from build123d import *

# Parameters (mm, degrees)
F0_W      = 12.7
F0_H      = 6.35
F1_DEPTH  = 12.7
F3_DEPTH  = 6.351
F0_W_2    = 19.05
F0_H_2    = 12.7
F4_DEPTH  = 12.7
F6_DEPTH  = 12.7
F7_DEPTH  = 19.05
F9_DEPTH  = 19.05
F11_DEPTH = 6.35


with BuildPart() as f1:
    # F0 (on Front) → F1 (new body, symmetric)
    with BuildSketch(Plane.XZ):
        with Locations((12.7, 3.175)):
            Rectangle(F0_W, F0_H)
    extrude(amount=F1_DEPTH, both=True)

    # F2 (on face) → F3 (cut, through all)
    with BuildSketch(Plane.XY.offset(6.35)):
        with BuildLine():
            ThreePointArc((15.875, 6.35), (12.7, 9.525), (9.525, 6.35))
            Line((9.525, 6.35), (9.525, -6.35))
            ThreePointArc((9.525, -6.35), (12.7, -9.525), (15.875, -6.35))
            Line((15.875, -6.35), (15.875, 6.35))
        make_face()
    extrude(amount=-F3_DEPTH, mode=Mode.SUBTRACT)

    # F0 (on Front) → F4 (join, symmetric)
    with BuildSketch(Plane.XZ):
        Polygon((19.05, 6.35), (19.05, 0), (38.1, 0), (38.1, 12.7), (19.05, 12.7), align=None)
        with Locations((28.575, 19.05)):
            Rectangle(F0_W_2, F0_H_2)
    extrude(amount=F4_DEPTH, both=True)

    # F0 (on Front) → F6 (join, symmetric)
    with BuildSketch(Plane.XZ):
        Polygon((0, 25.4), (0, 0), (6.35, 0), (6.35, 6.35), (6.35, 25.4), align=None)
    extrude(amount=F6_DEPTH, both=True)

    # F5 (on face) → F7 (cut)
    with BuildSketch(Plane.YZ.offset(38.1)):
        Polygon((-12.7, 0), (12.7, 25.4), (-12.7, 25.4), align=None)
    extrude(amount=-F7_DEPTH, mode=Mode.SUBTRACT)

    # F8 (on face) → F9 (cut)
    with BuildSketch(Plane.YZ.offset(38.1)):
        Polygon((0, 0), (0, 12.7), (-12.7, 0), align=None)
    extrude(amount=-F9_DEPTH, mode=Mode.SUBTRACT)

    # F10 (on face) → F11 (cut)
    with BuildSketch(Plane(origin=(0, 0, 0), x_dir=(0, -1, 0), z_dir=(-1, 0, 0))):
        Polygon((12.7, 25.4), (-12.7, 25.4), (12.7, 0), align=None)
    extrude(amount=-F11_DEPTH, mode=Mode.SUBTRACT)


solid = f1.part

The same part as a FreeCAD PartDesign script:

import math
import FreeCAD as App
import Part
import Sketcher
Q = App.Units.Quantity

doc = App.newDocument("Part")
body = doc.addObject("PartDesign::Body", "Body")

sketch1 = doc.addObject("Sketcher::SketchObject", "Sketch")
body.addObject(sketch1)
sketch1.AttachmentSupport = (doc.XZ_Plane, [""])
sketch1.MapMode = "FlatFace"
sketch1.addGeometry(Part.LineSegment(App.Vector(6, 6, 0), App.Vector(6, 0, 0)), False)
sketch1.addGeometry(Part.LineSegment(App.Vector(6, 0, 0), App.Vector(19, 0, 0)), False)
sketch1.addGeometry(Part.LineSegment(App.Vector(19, 0, 0), App.Vector(19, 6, 0)), False)
sketch1.addGeometry(Part.LineSegment(App.Vector(19, 6, 0), App.Vector(6, 6, 0)), False)
sketch1.addConstraint(Sketcher.Constraint("Coincident", 0, 2, 1, 1))
sketch1.addConstraint(Sketcher.Constraint("Coincident", 1, 2, 2, 1))
sketch1.addConstraint(Sketcher.Constraint("Coincident", 2, 2, 3, 1))
sketch1.addConstraint(Sketcher.Constraint("Coincident", 3, 2, 0, 1))
sketch1.addConstraint(Sketcher.Constraint("Vertical", 0))
sketch1.addConstraint(Sketcher.Constraint("Horizontal", 1))
sketch1.addConstraint(Sketcher.Constraint("Vertical", 2))
sketch1.addConstraint(Sketcher.Constraint("Horizontal", 3))
sketch1.addConstraint(Sketcher.Constraint("PointOnObject", 0, 2, -1))
sketch1.addConstraint(Sketcher.Constraint("DistanceX", 1, 1, 1, 2, Q("0.5 in")))
sketch1.addConstraint(Sketcher.Constraint("DistanceY", 0, 2, 0, 1, Q("0.25 in")))
sketch1.addConstraint(Sketcher.Constraint("DistanceX", -1, 1, 0, 2, Q("0.25 in")))
pad1 = doc.addObject("PartDesign::Pad", "Pad")
body.addObject(pad1)
pad1.Profile = sketch1
pad1.Length = Q("1 in")
pad1.Midplane = True

sketch2 = doc.addObject("Sketcher::SketchObject", "Sketch001")
body.addObject(sketch2)
sketch2.AttachmentSupport = (doc.XY_Plane, [""])
sketch2.MapMode = "FlatFace"
sketch2.AttachmentOffset = App.Placement(App.Vector(0, 0, 0.25 * 25.4), App.Rotation())
sketch2.addGeometry(Part.ArcOfCircle(Part.Circle(App.Vector(12.7, 6.3, 0), App.Vector(0, 0, 1), 3.2), math.radians(0), math.radians(180)), False)
sketch2.addGeometry(Part.LineSegment(App.Vector(9.5, 6.3, 0), App.Vector(9.5, -6.3, 0)), False)
sketch2.addGeometry(Part.ArcOfCircle(Part.Circle(App.Vector(12.7, -6.3, 0), App.Vector(0, 0, 1), 3.2), math.radians(180), math.radians(360)), False)
sketch2.addGeometry(Part.LineSegment(App.Vector(15.9, -6.3, 0), App.Vector(15.9, 6.3, 0)), False)
sketch2.addConstraint(Sketcher.Constraint("Tangent", 0, 2, 1, 1))
sketch2.addConstraint(Sketcher.Constraint("Tangent", 1, 2, 2, 1))
sketch2.addConstraint(Sketcher.Constraint("Tangent", 2, 2, 3, 1))
sketch2.addConstraint(Sketcher.Constraint("Tangent", 3, 2, 0, 1))
sketch2.addConstraint(Sketcher.Constraint("Vertical", 1))
sketch2.addConstraint(Sketcher.Constraint("Vertical", 3))
sketch2.addConstraint(Sketcher.Constraint("DistanceY", 1, 2, 1, 1, Q("0.5 in")))
sketch2.addConstraint(Sketcher.Constraint("Radius", 0, Q("0.125 in")))
sketch2.addConstraint(Sketcher.Constraint("DistanceX", -1, 1, 0, 3, Q("0.5 in")))
sketch2.addConstraint(Sketcher.Constraint("DistanceY", -1, 1, 0, 3, Q("0.25 in")))
pocket1 = doc.addObject("PartDesign::Pocket", "Pocket")
body.addObject(pocket1)
pocket1.Profile = sketch2
pocket1.Type = "ThroughAll"

sketch3 = doc.addObject("Sketcher::SketchObject", "Sketch002")
body.addObject(sketch3)
sketch3.AttachmentSupport = (doc.XZ_Plane, [""])
sketch3.MapMode = "FlatFace"
sketch3.addGeometry(Part.LineSegment(App.Vector(19, 0, 0), App.Vector(38, 0, 0)), False)
sketch3.addGeometry(Part.LineSegment(App.Vector(38, 0, 0), App.Vector(38, 25, 0)), False)
sketch3.addGeometry(Part.LineSegment(App.Vector(38, 25, 0), App.Vector(19, 25, 0)), False)
sketch3.addGeometry(Part.LineSegment(App.Vector(19, 25, 0), App.Vector(19, 0, 0)), False)
sketch3.addConstraint(Sketcher.Constraint("Coincident", 0, 2, 1, 1))
sketch3.addConstraint(Sketcher.Constraint("Coincident", 1, 2, 2, 1))
sketch3.addConstraint(Sketcher.Constraint("Coincident", 2, 2, 3, 1))
sketch3.addConstraint(Sketcher.Constraint("Coincident", 3, 2, 0, 1))
sketch3.addConstraint(Sketcher.Constraint("Horizontal", 0))
sketch3.addConstraint(Sketcher.Constraint("Vertical", 1))
sketch3.addConstraint(Sketcher.Constraint("Horizontal", 2))
sketch3.addConstraint(Sketcher.Constraint("Vertical", 3))
sketch3.addConstraint(Sketcher.Constraint("PointOnObject", 0, 2, -1))
sketch3.addConstraint(Sketcher.Constraint("DistanceY", 1, 1, 1, 2, Q("1 in")))
sketch3.addConstraint(Sketcher.Constraint("DistanceX", 0, 1, 0, 2, Q("0.75 in")))
sketch3.addConstraint(Sketcher.Constraint("DistanceX", -1, 1, 0, 2, Q("1.5 in")))
pad2 = doc.addObject("PartDesign::Pad", "Pad001")
body.addObject(pad2)
pad2.Profile = sketch3
pad2.Length = Q("1 in")
pad2.Midplane = True

sketch4 = doc.addObject("Sketcher::SketchObject", "Sketch003")
body.addObject(sketch4)
sketch4.AttachmentSupport = (doc.XZ_Plane, [""])
sketch4.MapMode = "FlatFace"
sketch4.addGeometry(Part.LineSegment(App.Vector(0, 25, 0), App.Vector(0, 0, 0)), False)
sketch4.addGeometry(Part.LineSegment(App.Vector(0, 0, 0), App.Vector(6, 0, 0)), False)
sketch4.addGeometry(Part.LineSegment(App.Vector(6, 0, 0), App.Vector(6, 25, 0)), False)
sketch4.addGeometry(Part.LineSegment(App.Vector(6, 25, 0), App.Vector(0, 25, 0)), False)
sketch4.addConstraint(Sketcher.Constraint("Coincident", 0, 2, 1, 1))
sketch4.addConstraint(Sketcher.Constraint("Coincident", 1, 2, 2, 1))
sketch4.addConstraint(Sketcher.Constraint("Coincident", 2, 2, 3, 1))
sketch4.addConstraint(Sketcher.Constraint("Coincident", 3, 2, 0, 1))
sketch4.addConstraint(Sketcher.Constraint("Vertical", 0))
sketch4.addConstraint(Sketcher.Constraint("Horizontal", 1))
sketch4.addConstraint(Sketcher.Constraint("Vertical", 2))
sketch4.addConstraint(Sketcher.Constraint("Horizontal", 3))
sketch4.addConstraint(Sketcher.Constraint("Coincident", 0, 2, -1, 1))
sketch4.addConstraint(Sketcher.Constraint("DistanceY", 0, 2, 0, 1, Q("1 in")))
sketch4.addConstraint(Sketcher.Constraint("DistanceX", 1, 1, 1, 2, Q("0.25 in")))
pad3 = doc.addObject("PartDesign::Pad", "Pad002")
body.addObject(pad3)
pad3.Profile = sketch4
pad3.Length = Q("1 in")
pad3.Midplane = True

sketch5 = doc.addObject("Sketcher::SketchObject", "Sketch004")
body.addObject(sketch5)
sketch5.AttachmentSupport = (doc.YZ_Plane, [""])
sketch5.MapMode = "FlatFace"
sketch5.AttachmentOffset = App.Placement(App.Vector(0, 0, 1.5 * 25.4), App.Rotation())
sketch5.addGeometry(Part.LineSegment(App.Vector(-13, 0, 0), App.Vector(13, 25, 0)), False)
sketch5.addGeometry(Part.LineSegment(App.Vector(13, 25, 0), App.Vector(-13, 25, 0)), False)
sketch5.addGeometry(Part.LineSegment(App.Vector(-13, 25, 0), App.Vector(-13, 0, 0)), False)
sketch5.addConstraint(Sketcher.Constraint("Coincident", 0, 2, 1, 1))
sketch5.addConstraint(Sketcher.Constraint("Coincident", 1, 2, 2, 1))
sketch5.addConstraint(Sketcher.Constraint("Coincident", 2, 2, 0, 1))
sketch5.addConstraint(Sketcher.Constraint("Horizontal", 1))
sketch5.addConstraint(Sketcher.Constraint("Vertical", 2))
sketch5.addConstraint(Sketcher.Constraint("PointOnObject", 2, 2, -1))
sketch5.addConstraint(Sketcher.Constraint("Equal", 1, 2))
sketch5.addConstraint(Sketcher.Constraint("DistanceX", 1, 2, 1, 1, Q("1 in")))
sketch5.addConstraint(Sketcher.Constraint("DistanceX", -1, 1, 0, 2, Q("0.5 in")))
pocket2 = doc.addObject("PartDesign::Pocket", "Pocket001")
body.addObject(pocket2)
pocket2.Profile = sketch5
pocket2.Length = Q("0.75 in")

sketch6 = doc.addObject("Sketcher::SketchObject", "Sketch005")
body.addObject(sketch6)
sketch6.AttachmentSupport = (doc.YZ_Plane, [""])
sketch6.MapMode = "FlatFace"
sketch6.AttachmentOffset = App.Placement(App.Vector(0, 0, 1.5 * 25.4), App.Rotation())
sketch6.addGeometry(Part.LineSegment(App.Vector(0, 0, 0), App.Vector(0, 13, 0)), False)
sketch6.addGeometry(Part.LineSegment(App.Vector(0, 13, 0), App.Vector(-13, 0, 0)), False)
sketch6.addGeometry(Part.LineSegment(App.Vector(-13, 0, 0), App.Vector(0, 0, 0)), False)
sketch6.addConstraint(Sketcher.Constraint("Coincident", 0, 2, 1, 1))
sketch6.addConstraint(Sketcher.Constraint("Coincident", 1, 2, 2, 1))
sketch6.addConstraint(Sketcher.Constraint("Coincident", 2, 2, 0, 1))
sketch6.addConstraint(Sketcher.Constraint("Vertical", 0))
sketch6.addConstraint(Sketcher.Constraint("Horizontal", 2))
sketch6.addConstraint(Sketcher.Constraint("Coincident", 2, 2, -1, 1))
sketch6.addConstraint(Sketcher.Constraint("Equal", 2, 0))
sketch6.addConstraint(Sketcher.Constraint("DistanceX", 2, 1, 2, 2, Q("0.5 in")))
pocket3 = doc.addObject("PartDesign::Pocket", "Pocket002")
body.addObject(pocket3)
pocket3.Profile = sketch6
pocket3.Length = Q("0.75 in")

sketch7 = doc.addObject("Sketcher::SketchObject", "Sketch006")
body.addObject(sketch7)
sketch7.AttachmentSupport = (doc.YZ_Plane, [""])
sketch7.MapMode = "FlatFace"
sketch7.addGeometry(Part.LineSegment(App.Vector(-13, 25, 0), App.Vector(13, 25, 0)), False)
sketch7.addGeometry(Part.LineSegment(App.Vector(13, 25, 0), App.Vector(-13, 0, 0)), False)
sketch7.addGeometry(Part.LineSegment(App.Vector(-13, 0, 0), App.Vector(-13, 25, 0)), False)
sketch7.addConstraint(Sketcher.Constraint("Coincident", 0, 2, 1, 1))
sketch7.addConstraint(Sketcher.Constraint("Coincident", 1, 2, 2, 1))
sketch7.addConstraint(Sketcher.Constraint("Coincident", 2, 2, 0, 1))
sketch7.addConstraint(Sketcher.Constraint("Horizontal", 0))
sketch7.addConstraint(Sketcher.Constraint("Vertical", 2))
sketch7.addConstraint(Sketcher.Constraint("PointOnObject", 1, 2, -1))
sketch7.addConstraint(Sketcher.Constraint("Equal", 0, 2))
sketch7.addConstraint(Sketcher.Constraint("DistanceX", 0, 1, 0, 2, Q("1 in")))
sketch7.addConstraint(Sketcher.Constraint("DistanceX", -1, 1, 0, 2, Q("0.5 in")))
pocket4 = doc.addObject("PartDesign::Pocket", "Pocket003")
body.addObject(pocket4)
pocket4.Profile = sketch7
pocket4.Length = Q("0.25 in")
pocket4.Reversed = True

doc.recompute()
